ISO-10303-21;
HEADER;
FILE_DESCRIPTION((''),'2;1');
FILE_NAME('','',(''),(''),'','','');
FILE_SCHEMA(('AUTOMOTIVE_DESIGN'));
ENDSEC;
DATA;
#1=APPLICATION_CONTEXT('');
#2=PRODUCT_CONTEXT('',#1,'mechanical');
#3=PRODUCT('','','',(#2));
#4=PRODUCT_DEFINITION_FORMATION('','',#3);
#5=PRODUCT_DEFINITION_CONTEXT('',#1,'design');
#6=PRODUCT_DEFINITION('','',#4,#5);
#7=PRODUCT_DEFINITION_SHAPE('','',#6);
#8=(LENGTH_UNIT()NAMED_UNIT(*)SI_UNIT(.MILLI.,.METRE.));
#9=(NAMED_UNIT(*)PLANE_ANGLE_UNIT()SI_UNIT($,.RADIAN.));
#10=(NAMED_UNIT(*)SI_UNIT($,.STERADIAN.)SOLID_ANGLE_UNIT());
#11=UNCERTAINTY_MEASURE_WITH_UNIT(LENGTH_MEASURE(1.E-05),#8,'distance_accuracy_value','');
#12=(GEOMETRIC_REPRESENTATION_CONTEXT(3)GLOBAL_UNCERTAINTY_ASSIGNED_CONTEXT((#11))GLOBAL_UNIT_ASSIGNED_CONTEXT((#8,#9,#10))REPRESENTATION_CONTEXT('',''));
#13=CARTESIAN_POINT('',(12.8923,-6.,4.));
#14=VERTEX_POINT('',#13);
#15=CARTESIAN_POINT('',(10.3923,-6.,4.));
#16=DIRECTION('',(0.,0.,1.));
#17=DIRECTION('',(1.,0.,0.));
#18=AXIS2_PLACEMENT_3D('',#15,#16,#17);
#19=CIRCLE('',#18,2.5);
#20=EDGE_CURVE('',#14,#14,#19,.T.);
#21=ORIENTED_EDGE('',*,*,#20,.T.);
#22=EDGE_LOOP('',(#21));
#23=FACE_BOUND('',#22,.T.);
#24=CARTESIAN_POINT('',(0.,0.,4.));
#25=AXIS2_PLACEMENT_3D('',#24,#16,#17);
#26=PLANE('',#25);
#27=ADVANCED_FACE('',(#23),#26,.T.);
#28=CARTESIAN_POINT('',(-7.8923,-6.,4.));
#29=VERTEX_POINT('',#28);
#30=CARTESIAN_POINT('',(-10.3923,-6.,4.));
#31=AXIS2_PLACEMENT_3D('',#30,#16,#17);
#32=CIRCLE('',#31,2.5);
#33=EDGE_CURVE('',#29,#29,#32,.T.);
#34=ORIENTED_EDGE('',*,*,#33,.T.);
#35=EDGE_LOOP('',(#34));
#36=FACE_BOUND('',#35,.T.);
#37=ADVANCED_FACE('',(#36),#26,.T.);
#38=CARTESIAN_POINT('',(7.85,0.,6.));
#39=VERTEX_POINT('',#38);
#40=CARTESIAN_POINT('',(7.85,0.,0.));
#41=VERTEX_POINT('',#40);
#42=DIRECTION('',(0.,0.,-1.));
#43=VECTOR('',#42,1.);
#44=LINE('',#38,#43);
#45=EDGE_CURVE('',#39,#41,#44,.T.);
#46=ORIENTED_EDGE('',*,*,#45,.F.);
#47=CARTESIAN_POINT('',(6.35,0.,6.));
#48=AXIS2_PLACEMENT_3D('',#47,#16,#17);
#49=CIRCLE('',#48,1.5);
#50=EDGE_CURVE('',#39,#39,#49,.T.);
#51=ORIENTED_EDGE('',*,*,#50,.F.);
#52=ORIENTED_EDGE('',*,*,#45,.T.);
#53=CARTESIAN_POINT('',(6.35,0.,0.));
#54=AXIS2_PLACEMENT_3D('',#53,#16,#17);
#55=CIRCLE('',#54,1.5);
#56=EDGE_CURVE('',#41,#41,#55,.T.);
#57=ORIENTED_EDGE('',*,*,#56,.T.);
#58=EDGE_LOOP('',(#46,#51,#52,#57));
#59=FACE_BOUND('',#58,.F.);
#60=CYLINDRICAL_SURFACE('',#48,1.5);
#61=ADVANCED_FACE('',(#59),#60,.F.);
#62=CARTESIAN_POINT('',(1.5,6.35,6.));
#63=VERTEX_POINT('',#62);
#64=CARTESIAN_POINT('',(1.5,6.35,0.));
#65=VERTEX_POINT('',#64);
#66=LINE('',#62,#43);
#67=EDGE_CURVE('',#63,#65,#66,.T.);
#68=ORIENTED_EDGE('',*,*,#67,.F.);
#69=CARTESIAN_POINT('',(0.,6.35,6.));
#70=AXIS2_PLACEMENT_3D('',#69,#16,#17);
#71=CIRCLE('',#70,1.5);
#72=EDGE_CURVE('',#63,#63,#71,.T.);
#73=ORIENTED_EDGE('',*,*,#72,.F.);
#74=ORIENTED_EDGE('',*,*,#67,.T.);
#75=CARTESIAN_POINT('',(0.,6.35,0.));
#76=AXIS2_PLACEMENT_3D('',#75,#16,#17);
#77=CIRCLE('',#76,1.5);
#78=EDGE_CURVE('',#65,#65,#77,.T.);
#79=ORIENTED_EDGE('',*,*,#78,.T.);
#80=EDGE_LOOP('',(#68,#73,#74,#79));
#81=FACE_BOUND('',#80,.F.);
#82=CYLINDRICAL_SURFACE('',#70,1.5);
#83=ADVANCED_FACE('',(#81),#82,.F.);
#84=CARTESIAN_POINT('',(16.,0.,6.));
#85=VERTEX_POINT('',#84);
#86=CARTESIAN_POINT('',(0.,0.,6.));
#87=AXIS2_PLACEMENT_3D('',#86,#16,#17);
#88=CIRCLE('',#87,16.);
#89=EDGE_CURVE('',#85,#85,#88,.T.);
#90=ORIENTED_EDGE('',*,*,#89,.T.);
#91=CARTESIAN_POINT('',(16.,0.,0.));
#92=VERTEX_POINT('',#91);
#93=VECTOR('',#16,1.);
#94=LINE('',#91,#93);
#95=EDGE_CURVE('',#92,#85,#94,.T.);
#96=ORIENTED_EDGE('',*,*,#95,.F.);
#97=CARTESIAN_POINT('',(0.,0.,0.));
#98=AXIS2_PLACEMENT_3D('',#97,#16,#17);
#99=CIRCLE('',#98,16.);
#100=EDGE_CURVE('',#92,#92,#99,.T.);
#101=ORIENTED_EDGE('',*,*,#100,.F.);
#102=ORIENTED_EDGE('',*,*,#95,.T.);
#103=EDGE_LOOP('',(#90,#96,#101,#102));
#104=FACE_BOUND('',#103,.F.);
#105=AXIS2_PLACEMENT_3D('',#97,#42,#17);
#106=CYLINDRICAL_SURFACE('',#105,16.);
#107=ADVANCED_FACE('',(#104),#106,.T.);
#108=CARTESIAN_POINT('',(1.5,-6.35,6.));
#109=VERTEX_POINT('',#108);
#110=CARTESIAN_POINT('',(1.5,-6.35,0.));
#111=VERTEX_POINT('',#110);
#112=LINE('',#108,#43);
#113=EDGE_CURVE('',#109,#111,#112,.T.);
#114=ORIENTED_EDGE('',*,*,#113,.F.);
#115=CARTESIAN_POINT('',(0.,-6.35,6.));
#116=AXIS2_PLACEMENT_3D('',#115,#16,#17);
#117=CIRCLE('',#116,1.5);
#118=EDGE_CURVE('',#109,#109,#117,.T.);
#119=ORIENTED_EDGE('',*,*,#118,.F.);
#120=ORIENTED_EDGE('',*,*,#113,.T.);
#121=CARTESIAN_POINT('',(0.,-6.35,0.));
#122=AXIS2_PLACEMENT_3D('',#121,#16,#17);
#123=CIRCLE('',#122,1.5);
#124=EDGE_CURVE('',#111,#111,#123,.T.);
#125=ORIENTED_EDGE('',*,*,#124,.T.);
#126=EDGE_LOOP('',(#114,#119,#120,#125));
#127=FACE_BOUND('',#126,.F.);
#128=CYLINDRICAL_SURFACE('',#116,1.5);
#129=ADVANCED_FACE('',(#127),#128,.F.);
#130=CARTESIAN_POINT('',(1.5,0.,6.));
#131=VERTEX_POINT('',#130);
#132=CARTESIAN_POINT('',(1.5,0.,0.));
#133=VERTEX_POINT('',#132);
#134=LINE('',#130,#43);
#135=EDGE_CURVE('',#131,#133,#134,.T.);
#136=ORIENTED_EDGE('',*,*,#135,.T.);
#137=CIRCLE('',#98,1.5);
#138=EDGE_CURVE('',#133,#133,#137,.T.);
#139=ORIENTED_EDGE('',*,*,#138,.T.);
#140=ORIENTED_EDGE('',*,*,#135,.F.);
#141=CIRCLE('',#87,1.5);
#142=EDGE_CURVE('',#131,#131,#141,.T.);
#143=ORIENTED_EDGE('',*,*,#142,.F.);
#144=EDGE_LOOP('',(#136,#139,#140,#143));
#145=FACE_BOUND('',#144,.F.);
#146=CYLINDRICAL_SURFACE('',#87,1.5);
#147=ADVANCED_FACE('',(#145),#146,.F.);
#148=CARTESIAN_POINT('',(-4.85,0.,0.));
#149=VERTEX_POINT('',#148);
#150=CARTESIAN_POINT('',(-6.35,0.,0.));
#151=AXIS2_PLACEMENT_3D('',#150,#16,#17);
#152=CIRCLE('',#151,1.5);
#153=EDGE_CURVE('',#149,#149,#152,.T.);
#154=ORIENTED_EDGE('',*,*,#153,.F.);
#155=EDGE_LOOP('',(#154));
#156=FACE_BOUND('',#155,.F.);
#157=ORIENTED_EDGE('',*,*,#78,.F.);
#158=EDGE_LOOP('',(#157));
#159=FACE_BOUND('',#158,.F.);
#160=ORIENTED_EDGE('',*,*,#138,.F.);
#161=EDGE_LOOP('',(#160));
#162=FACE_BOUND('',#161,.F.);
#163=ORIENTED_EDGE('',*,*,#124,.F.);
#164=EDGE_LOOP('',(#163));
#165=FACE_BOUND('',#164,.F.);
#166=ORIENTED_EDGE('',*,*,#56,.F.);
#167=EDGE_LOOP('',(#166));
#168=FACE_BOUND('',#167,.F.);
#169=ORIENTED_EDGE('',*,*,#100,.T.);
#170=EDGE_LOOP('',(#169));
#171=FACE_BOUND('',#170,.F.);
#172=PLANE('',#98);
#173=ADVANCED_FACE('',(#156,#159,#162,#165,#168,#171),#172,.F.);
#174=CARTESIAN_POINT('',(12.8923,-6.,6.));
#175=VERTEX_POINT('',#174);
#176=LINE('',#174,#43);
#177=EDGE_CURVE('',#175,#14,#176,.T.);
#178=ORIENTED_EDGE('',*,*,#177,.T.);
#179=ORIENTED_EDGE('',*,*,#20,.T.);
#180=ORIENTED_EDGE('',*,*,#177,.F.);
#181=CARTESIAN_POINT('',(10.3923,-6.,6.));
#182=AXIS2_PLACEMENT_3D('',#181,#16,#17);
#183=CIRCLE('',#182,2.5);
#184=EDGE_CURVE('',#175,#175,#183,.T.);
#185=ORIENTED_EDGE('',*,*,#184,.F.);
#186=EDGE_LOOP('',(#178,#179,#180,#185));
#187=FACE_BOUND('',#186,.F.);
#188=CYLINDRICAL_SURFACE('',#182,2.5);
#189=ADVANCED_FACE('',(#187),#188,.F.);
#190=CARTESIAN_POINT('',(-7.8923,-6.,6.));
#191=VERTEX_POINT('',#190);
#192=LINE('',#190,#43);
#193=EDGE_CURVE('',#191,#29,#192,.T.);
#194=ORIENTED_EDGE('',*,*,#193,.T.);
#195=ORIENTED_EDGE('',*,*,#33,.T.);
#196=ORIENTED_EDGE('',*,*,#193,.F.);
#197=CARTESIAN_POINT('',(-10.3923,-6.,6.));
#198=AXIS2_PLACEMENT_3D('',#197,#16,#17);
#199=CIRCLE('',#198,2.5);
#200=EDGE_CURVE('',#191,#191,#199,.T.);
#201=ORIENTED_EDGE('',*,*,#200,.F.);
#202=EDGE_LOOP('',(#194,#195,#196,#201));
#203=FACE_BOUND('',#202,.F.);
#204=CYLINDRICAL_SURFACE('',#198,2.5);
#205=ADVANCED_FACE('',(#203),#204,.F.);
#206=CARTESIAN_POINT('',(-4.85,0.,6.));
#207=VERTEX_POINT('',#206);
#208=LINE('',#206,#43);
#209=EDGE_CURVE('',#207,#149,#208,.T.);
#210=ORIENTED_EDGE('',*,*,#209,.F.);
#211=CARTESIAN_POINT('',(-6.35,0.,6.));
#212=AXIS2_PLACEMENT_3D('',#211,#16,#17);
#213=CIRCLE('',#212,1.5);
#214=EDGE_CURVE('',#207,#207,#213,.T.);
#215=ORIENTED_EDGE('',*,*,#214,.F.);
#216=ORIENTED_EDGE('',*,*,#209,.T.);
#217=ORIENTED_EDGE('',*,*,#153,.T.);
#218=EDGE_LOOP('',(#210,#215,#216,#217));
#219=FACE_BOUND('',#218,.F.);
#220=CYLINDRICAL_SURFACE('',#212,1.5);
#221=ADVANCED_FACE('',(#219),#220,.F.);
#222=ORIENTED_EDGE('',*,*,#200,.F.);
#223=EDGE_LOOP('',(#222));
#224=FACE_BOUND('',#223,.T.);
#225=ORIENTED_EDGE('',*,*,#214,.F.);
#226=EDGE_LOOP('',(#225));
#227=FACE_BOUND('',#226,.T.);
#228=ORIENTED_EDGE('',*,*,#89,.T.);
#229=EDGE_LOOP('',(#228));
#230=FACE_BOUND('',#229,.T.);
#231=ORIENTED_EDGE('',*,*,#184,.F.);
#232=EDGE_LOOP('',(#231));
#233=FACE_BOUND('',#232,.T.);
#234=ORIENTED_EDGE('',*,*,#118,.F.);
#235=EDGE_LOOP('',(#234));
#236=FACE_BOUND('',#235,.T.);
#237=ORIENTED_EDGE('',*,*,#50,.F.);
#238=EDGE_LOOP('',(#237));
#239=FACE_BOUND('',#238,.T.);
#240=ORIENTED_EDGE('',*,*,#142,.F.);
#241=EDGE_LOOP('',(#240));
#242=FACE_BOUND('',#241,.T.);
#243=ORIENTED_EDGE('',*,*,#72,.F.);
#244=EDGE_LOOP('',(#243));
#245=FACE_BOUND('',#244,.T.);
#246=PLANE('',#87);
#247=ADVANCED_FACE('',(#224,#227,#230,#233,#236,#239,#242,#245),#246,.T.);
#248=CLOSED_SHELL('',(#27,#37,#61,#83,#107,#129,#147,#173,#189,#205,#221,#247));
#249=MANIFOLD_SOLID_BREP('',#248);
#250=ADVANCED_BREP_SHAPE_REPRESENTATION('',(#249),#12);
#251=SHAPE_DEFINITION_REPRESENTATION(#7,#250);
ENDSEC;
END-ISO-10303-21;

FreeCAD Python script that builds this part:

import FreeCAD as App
import Part
import Sketcher
Q = App.Units.Quantity

doc = App.newDocument("Part")
body = doc.addObject("PartDesign::Body", "Body")

sketch1 = doc.addObject("Sketcher::SketchObject", "Sketch")
body.addObject(sketch1)
sketch1.AttachmentSupport = (doc.XY_Plane, [""])
sketch1.MapMode = "FlatFace"
sketch1.addGeometry(Part.Circle(App.Vector(0, 0, 0), App.Vector(0, 0, 1), 16), False)
sketch1.addConstraint([
    Sketcher.Constraint("Coincident", 0, 3, -1, 1),
    Sketcher.Constraint("Diameter", 0, Q("32 mm")),
])
pad1 = doc.addObject("PartDesign::Pad", "Pad")
body.addObject(pad1)
pad1.Profile = sketch1
pad1.Length = 6

sketch2 = doc.addObject("Sketcher::SketchObject", "Sketch001")
body.addObject(sketch2)
sketch2.AttachmentSupport = (doc.XY_Plane, [""])
sketch2.MapMode = "FlatFace"
sketch2.AttachmentOffset = App.Placement(App.Vector(0, 0, 6), App.Rotation())
sketch2.addGeometry([
    Part.Circle(App.Vector(0, 0, 0), App.Vector(0, 0, 1), 1.5),
    Part.Circle(App.Vector(0, 6.3, 0), App.Vector(0, 0, 1), 1.5),
    Part.Circle(App.Vector(-6.3, 0, 0), App.Vector(0, 0, 1), 1.5),
    Part.Circle(App.Vector(0, -6.3, 0), App.Vector(0, 0, 1), 1.5),
    Part.Circle(App.Vector(6.3, 0, 0), App.Vector(0, 0, 1), 1.5),
], False)
sketch2.addConstraint([
    Sketcher.Constraint("Coincident", 0, 3, -1, 1),
    Sketcher.Constraint("Equal", 0, 1),
    Sketcher.Constraint("Equal", 1, 2),
    Sketcher.Constraint("Equal", 2, 3),
    Sketcher.Constraint("Equal", 3, 4),
    Sketcher.Constraint("Symmetric", 1, 3, 3, 3, -1, 1),
    Sketcher.Constraint("Symmetric", 2, 3, 4, 3, -1, 1),
    Sketcher.Constraint("PointOnObject", 1, 3, -2),
    Sketcher.Constraint("PointOnObject", 2, 3, -1),
    Sketcher.Constraint("Diameter", 0, Q("3 mm")),
    Sketcher.Constraint("DistanceY", -1, 1, 1, 3, Q("6.35 mm")),
    Sketcher.Constraint("DistanceX", 2, 3, -1, 1, Q("6.35 mm")),
])
pocket1 = doc.addObject("PartDesign::Pocket", "Pocket")
body.addObject(pocket1)
pocket1.Profile = sketch2
pocket1.Type = "UpToFirst"

sketch3 = doc.addObject("Sketcher::SketchObject", "Sketch002")
body.addObject(sketch3)
sketch3.AttachmentSupport = (doc.XY_Plane, [""])
sketch3.MapMode = "FlatFace"
sketch3.AttachmentOffset = App.Placement(App.Vector(0, 0, 6), App.Rotation())
sketch3.addGeometry([
    Part.Circle(App.Vector(-10.4, -6, 0), App.Vector(0, 0, 1), 2.5),
    Part.Circle(App.Vector(10.4, -6, 0), App.Vector(0, 0, 1), 2.5),
], False)
sketch3.addConstraint([
    Sketcher.Constraint("Equal", 0, 1),
    Sketcher.Constraint("Symmetric", 0, 3, 1, 3, -2),
    Sketcher.Constraint("Diameter", 0, Q("5 mm")),
    Sketcher.Constraint("DistanceY", 0, 3, -1, 1, Q("6 mm")),
    Sketcher.Constraint("DistanceX", 0, 3, -1, 1, Q("10.3923 mm")),
])
pocket2 = doc.addObject("PartDesign::Pocket", "Pocket001")
body.addObject(pocket2)
pocket2.Profile = sketch3
pocket2.Length = 2

doc.recompute()
